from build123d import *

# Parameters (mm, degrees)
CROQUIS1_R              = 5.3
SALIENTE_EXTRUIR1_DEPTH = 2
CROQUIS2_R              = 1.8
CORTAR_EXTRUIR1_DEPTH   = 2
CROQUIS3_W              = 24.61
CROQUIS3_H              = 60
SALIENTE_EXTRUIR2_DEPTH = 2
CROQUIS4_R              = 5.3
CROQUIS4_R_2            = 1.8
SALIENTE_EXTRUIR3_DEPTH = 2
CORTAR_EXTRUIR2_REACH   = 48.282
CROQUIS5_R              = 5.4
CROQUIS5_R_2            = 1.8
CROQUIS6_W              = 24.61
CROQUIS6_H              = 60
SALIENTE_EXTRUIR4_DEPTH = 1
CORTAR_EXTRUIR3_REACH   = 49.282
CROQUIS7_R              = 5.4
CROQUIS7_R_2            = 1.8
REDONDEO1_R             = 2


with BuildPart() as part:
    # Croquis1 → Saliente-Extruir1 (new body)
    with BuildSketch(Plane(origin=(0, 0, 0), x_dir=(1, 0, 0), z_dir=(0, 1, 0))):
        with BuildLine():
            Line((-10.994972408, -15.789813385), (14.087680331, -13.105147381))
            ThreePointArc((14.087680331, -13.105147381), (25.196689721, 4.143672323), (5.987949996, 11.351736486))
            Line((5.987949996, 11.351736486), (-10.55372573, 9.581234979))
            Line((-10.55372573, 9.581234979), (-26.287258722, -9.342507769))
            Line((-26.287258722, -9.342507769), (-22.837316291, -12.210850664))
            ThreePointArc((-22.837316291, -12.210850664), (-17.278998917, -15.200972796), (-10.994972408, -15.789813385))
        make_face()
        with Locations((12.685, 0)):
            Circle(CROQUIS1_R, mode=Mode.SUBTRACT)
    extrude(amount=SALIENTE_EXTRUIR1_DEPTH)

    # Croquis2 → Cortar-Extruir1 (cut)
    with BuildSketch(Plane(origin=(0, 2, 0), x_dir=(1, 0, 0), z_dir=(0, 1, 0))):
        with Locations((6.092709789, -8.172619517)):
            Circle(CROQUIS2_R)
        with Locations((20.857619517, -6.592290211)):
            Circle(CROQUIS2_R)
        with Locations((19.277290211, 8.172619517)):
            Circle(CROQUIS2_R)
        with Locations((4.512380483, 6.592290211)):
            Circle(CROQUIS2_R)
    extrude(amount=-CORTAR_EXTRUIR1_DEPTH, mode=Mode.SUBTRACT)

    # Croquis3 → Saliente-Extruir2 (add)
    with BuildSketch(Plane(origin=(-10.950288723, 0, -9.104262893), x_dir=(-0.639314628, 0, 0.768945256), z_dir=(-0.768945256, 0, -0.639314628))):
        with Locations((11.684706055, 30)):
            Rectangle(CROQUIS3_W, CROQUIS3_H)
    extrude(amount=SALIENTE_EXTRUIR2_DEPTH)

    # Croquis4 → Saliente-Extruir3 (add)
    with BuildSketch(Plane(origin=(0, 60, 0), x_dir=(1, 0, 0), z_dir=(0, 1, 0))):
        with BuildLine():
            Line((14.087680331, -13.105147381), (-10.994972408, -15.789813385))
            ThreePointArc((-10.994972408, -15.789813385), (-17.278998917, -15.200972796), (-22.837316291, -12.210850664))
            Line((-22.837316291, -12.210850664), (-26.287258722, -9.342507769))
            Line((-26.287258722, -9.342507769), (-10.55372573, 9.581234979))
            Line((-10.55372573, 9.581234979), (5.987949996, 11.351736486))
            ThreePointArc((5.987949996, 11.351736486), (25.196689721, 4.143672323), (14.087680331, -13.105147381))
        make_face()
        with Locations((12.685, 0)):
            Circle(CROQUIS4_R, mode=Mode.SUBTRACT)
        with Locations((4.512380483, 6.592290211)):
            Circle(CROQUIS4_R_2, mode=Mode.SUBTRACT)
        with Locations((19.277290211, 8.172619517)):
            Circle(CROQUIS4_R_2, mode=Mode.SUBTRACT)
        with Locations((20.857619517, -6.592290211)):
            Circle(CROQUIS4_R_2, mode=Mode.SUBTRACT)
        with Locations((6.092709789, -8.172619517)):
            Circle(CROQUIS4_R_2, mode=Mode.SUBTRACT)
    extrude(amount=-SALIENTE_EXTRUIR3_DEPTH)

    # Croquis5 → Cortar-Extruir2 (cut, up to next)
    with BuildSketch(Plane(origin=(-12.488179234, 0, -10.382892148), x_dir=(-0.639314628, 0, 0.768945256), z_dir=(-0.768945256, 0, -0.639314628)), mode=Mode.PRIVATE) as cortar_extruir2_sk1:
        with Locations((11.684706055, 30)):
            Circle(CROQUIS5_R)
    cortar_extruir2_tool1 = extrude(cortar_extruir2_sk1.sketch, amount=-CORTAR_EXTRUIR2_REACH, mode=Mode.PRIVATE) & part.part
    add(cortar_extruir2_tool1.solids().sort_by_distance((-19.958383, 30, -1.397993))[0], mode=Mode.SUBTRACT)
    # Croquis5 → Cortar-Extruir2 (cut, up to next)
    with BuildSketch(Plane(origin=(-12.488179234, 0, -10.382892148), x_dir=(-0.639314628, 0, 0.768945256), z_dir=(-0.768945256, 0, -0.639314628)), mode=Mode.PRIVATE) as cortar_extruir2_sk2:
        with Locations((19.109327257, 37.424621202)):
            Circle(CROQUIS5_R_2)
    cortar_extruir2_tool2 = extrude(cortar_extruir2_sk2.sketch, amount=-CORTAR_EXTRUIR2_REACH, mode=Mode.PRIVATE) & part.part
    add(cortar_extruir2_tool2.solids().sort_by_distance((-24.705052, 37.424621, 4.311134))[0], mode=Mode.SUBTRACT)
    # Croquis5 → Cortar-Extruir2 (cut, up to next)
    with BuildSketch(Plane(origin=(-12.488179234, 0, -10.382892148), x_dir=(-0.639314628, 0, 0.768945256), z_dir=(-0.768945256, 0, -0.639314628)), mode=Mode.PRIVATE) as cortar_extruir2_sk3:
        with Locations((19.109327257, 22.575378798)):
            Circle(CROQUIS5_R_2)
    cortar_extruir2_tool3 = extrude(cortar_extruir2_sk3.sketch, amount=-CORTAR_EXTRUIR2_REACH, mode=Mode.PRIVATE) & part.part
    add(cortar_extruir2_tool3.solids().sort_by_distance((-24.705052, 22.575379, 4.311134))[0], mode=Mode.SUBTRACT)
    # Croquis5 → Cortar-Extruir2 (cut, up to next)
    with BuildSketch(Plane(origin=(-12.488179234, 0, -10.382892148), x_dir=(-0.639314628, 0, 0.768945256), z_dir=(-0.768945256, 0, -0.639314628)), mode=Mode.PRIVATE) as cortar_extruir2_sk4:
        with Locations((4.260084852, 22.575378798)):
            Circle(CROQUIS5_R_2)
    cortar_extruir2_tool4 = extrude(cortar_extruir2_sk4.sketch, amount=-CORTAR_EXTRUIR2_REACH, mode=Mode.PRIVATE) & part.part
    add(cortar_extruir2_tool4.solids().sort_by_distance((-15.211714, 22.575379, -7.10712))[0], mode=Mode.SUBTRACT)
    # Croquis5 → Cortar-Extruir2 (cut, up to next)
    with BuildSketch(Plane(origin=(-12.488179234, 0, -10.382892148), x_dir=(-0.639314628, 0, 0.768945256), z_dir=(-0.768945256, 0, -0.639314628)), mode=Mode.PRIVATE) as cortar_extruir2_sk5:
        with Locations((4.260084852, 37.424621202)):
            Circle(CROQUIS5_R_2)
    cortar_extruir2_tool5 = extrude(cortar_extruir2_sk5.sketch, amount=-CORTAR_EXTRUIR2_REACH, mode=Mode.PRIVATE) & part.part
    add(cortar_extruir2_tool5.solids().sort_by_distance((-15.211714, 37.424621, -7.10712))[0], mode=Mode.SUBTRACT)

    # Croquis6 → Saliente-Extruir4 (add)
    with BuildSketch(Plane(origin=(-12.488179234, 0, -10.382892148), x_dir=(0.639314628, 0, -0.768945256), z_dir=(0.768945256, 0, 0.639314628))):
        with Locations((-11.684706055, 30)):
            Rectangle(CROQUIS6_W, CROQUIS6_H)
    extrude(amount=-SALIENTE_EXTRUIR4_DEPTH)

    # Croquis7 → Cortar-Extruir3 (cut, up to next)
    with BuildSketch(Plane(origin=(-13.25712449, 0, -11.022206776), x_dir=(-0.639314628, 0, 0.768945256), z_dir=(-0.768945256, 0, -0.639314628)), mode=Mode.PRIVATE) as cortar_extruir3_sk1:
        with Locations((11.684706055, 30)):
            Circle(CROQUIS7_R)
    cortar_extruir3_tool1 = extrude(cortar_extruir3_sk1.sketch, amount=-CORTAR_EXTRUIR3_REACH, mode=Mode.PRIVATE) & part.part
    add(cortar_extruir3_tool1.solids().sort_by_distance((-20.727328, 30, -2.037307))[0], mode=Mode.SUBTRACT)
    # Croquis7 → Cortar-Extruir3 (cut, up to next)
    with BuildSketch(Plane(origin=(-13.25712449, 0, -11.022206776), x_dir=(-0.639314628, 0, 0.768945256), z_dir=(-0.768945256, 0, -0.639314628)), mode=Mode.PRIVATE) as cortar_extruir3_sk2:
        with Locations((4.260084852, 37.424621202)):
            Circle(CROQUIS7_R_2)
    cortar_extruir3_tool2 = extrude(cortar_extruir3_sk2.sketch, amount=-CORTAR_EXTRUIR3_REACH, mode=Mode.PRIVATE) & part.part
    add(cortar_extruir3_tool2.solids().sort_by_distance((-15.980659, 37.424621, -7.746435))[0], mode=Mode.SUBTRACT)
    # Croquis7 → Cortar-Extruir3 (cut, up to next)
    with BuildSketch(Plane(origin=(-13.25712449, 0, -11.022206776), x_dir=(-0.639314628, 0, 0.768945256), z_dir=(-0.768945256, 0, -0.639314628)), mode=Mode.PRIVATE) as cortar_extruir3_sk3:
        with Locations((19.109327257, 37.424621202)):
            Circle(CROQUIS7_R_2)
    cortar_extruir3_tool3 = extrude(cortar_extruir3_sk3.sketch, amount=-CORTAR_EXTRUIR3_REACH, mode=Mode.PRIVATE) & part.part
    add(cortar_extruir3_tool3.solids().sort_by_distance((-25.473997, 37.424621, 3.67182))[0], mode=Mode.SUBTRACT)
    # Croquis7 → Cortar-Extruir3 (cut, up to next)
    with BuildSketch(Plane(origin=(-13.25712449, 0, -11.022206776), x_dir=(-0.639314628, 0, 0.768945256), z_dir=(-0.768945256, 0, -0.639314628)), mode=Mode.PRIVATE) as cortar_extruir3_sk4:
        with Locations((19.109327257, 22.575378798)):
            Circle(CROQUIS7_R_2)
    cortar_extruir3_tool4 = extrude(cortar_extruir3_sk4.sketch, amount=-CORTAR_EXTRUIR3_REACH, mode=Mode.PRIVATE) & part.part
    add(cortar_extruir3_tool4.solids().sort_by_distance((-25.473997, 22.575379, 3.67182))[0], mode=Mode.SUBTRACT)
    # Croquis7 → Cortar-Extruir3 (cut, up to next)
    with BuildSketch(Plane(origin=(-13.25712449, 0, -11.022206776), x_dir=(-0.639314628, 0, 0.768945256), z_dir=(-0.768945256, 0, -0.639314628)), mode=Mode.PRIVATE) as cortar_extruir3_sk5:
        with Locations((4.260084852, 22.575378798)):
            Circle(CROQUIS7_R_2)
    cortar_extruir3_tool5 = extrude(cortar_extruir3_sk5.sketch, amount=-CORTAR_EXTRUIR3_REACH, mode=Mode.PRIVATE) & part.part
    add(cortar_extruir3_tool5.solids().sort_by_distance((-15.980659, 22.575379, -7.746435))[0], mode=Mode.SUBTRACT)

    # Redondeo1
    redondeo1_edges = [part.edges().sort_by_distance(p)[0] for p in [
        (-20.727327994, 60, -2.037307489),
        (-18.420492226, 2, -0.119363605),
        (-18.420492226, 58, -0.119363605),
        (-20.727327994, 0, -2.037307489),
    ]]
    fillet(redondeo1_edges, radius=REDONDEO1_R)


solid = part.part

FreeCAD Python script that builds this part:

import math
import FreeCAD as App
import Part
import Sketcher


def edges_at(feature, points):
    """Names of the edges that pass closest to the given points."""
    edges = feature.Shape.Edges
    near = lambda p: min(range(len(edges)), key=lambda i: edges[i].distToShape(Part.Vertex(*p))[0])
    return sorted({f"Edge{near(p) + 1}" for p in points})


def add_polygon(sketch, points):
    """Adds a closed chain of lines whose ends are joined by coincident constraints."""
    first, n = sketch.GeometryCount, len(points)
    for a, b in zip(points, points[1:] + points[:1]):
        sketch.addGeometry(Part.LineSegment(App.Vector(*a, 0), App.Vector(*b, 0)), False)
    for i in range(n):
        sketch.addConstraint(Sketcher.Constraint("Coincident", first + i, 2, first + (i + 1) % n, 1))

doc = App.newDocument("Part")
body = doc.addObject("PartDesign::Body", "Body")

sketch1 = doc.addObject("Sketcher::SketchObject", "Sketch")
body.addObject(sketch1)
sketch1.AttachmentSupport = (doc.XZ_Plane, [""])
sketch1.MapMode = "FlatFace"
sketch1.addGeometry([
    Part.LineSegment(App.Vector(-11, 15.8, 0), App.Vector(14.1, 13.1, 0)),
    Part.ArcOfCircle(Part.Circle(App.Vector(12.7, 0, 0), App.Vector(0, 0, 1), 13.2), math.radians(-121), math.radians(84)),
    Part.LineSegment(App.Vector(6, -11.4, 0), App.Vector(-10.6, -9.6, 0)),
    Part.LineSegment(App.Vector(-10.6, -9.6, 0), App.Vector(-26.3, 9.3, 0)),
    Part.LineSegment(App.Vector(-26.3, 9.3, 0), App.Vector(-22.8, 12.2, 0)),
    Part.ArcOfCircle(Part.Circle(App.Vector(-12.7, 0, 0), App.Vector(0, 0, 1), 15.9), math.radians(84), math.radians(130)),
    Part.Circle(App.Vector(12.7, 0, 0), App.Vector(0, 0, 1), 5.3),
], False)
sketch1.addConstraint([
    Sketcher.Constraint("Tangent", 0, 2, 1, 2),
    Sketcher.Constraint("Coincident", 1, 1, 2, 1),
    Sketcher.Constraint("Coincident", 2, 2, 3, 1),
    Sketcher.Constraint("Coincident", 3, 2, 4, 1),
    Sketcher.Constraint("Tangent", 4, 2, 5, 2),
    Sketcher.Constraint("Tangent", 5, 1, 0, 1),
    Sketcher.Constraint("Coincident", 6, 3, 1, 3),
    Sketcher.Constraint("Symmetric", 1, 3, 5, 3, -1, 1),
    Sketcher.Constraint("PointOnObject", 1, 3, -1),
    Sketcher.Constraint("Parallel", 0, 2),
    Sketcher.Constraint("Perpendicular", 3, 4),
    Sketcher.Constraint("Diameter", 6, 10.6),
    Sketcher.Constraint("Radius", 1, 13.18),
    Sketcher.Constraint("Radius", 5, 15.88),
    Sketcher.Constraint("Distance", 3, 24.61),
    Sketcher.Constraint("DistanceX", 5, 3, 1, 3, 25.37),
    Sketcher.Constraint("DistanceY", 1, 1, 2, 2, 1.770502),
    Sketcher.Constraint("Distance", 4, 4.48659),
])
pad1 = doc.addObject("PartDesign::Pad", "Pad")
body.addObject(pad1)
pad1.Profile = sketch1
pad1.Length = 2
pad1.Reversed = True

sketch2 = doc.addObject("Sketcher::SketchObject", "Sketch001")
body.addObject(sketch2)
sketch2.AttachmentSupport = (doc.XZ_Plane, [""])
sketch2.MapMode = "FlatFace"
sketch2.AttachmentOffset = App.Placement(App.Vector(0, 0, -2), App.Rotation())
sketch2.addGeometry([
    Part.Circle(App.Vector(6.1, 8.2, 0), App.Vector(0, 0, 1), 1.8),
    Part.Circle(App.Vector(20.9, 6.6, 0), App.Vector(0, 0, 1), 1.8),
    Part.Circle(App.Vector(19.3, -8.2, 0), App.Vector(0, 0, 1), 1.8),
    Part.Circle(App.Vector(4.5, -6.6, 0), App.Vector(0, 0, 1), 1.8),
], False)
sketch2.addConstraint([
    Sketcher.Constraint("Equal", 0, 1),
    Sketcher.Constraint("Equal", 1, 2),
    Sketcher.Constraint("Equal", 2, 3),
    Sketcher.Constraint("Diameter", 0, 3.6),
    Sketcher.Constraint("DistanceX", -1, 1, 0, 3, 6.09271),
    Sketcher.Constraint("DistanceY", -1, 1, 0, 3, 8.17262),
    Sketcher.Constraint("DistanceX", -1, 1, 1, 3, 20.85762),
    Sketcher.Constraint("DistanceY", -1, 1, 1, 3, 6.59229),
    Sketcher.Constraint("DistanceX", -1, 1, 2, 3, 19.27729),
    Sketcher.Constraint("DistanceY", 2, 3, -1, 1, 8.17262),
    Sketcher.Constraint("DistanceX", -1, 1, 3, 3, 4.51238),
    Sketcher.Constraint("DistanceY", 3, 3, -1, 1, 6.59229),
])
pocket1 = doc.addObject("PartDesign::Pocket", "Pocket")
body.addObject(pocket1)
pocket1.Profile = sketch2
pocket1.Length = 2
pocket1.Reversed = True

sketch3 = doc.addObject("Sketcher::SketchObject", "Sketch002")
body.addObject(sketch3)
sketch3.Placement = App.Placement(App.Vector(-10.950289, 0, -9.104263), App.Rotation(App.Vector(-0.639314628, 0, 0.768945256), App.Vector(0, 1, 0), App.Vector(-0.768945256, 0, -0.639314628), "ZXY"))
add_polygon(sketch3, [(-1, 60), (-1, 0), (24, 0), (24, 60)])
sketch3.addConstraint([
    Sketcher.Constraint("Vertical", 0),
    Sketcher.Constraint("Horizontal", 1),
    Sketcher.Constraint("Vertical", 2),
    Sketcher.Constraint("Horizontal", 3),
    Sketcher.Constraint("PointOnObject", 0, 2, -1),
    Sketcher.Constraint("DistanceY", 0, 2, 0, 1, 60.0),
    Sketcher.Constraint("DistanceX", 1, 1, 1, 2, 24.61),
    Sketcher.Constraint("DistanceX", 0, 2, -1, 1, 0.620294),
])
pad2 = doc.addObject("PartDesign::Pad", "Pad001")
body.addObject(pad2)
pad2.Profile = sketch3
pad2.Length = 2

sketch4 = doc.addObject("Sketcher::SketchObject", "Sketch003")
body.addObject(sketch4)
sketch4.AttachmentSupport = (doc.XZ_Plane, [""])
sketch4.MapMode = "FlatFace"
sketch4.AttachmentOffset = App.Placement(App.Vector(0, 0, -60), App.Rotation())
sketch4.addGeometry([
    Part.LineSegment(App.Vector(-11, 15.8, 0), App.Vector(14.1, 13.1, 0)),
    Part.ArcOfCircle(Part.Circle(App.Vector(12.7, 0, 0), App.Vector(0, 0, 1), 13.2), math.radians(-121), math.radians(84)),
    Part.LineSegment(App.Vector(6, -11.4, 0), App.Vector(-10.6, -9.6, 0)),
    Part.LineSegment(App.Vector(-10.6, -9.6, 0), App.Vector(-26.3, 9.3, 0)),
    Part.LineSegment(App.Vector(-26.3, 9.3, 0), App.Vector(-22.8, 12.2, 0)),
    Part.ArcOfCircle(Part.Circle(App.Vector(-12.7, 0, 0), App.Vector(0, 0, 1), 15.9), math.radians(84), math.radians(130)),
    Part.Circle(App.Vector(20.9, 6.6, 0), App.Vector(0, 0, 1), 1.8),
    Part.Circle(App.Vector(6.1, 8.2, 0), App.Vector(0, 0, 1), 1.8),
    Part.Circle(App.Vector(12.7, 0, 0), App.Vector(0, 0, 1), 5.3),
    Part.Circle(App.Vector(19.3, -8.2, 0), App.Vector(0, 0, 1), 1.8),
    Part.Circle(App.Vector(4.5, -6.6, 0), App.Vector(0, 0, 1), 1.8),
], False)
sketch4.addConstraint([
    Sketcher.Constraint("Tangent", 0, 2, 1, 2),
    Sketcher.Constraint("Coincident", 1, 1, 2, 1),
    Sketcher.Constraint("Coincident", 2, 2, 3, 1),
    Sketcher.Constraint("Coincident", 3, 2, 4, 1),
    Sketcher.Constraint("Tangent", 4, 2, 5, 2),
    Sketcher.Constraint("Tangent", 5, 1, 0, 1),
    Sketcher.Constraint("Coincident", 8, 3, 1, 3),
    Sketcher.Constraint("Equal", 6, 7),
    Sketcher.Constraint("Equal", 7, 9),
    Sketcher.Constraint("Equal", 9, 10),
    Sketcher.Constraint("Symmetric", 1, 3, 5, 3, -1, 1),
    Sketcher.Constraint("PointOnObject", 1, 3, -1),
    Sketcher.Constraint("Parallel", 0, 2),
    Sketcher.Constraint("Perpendicular", 3, 4),
    Sketcher.Constraint("Diameter", 6, 3.6),
    Sketcher.Constraint("Diameter", 8, 10.6),
    Sketcher.Constraint("Radius", 1, 13.18),
    Sketcher.Constraint("Radius", 5, 15.88),
    Sketcher.Constraint("Distance", 3, 24.61),
    Sketcher.Constraint("DistanceX", 5, 3, 1, 3, 25.37),
    Sketcher.Constraint("DistanceX", 10, 3, 0, 2, 9.5753),
    Sketcher.Constraint("DistanceY", 1, 1, 2, 2, 1.770502),
    Sketcher.Constraint("Distance", 4, 4.48659),
    Sketcher.Constraint("DistanceX", -1, 1, 6, 3, 20.85762),
    Sketcher.Constraint("DistanceY", -1, 1, 6, 3, 6.59229),
    Sketcher.Constraint("DistanceX", -1, 1, 7, 3, 6.09271),
    Sketcher.Constraint("DistanceY", -1, 1, 7, 3, 8.17262),
    Sketcher.Constraint("DistanceX", -1, 1, 9, 3, 19.27729),
    Sketcher.Constraint("DistanceY", 9, 3, -1, 1, 8.17262),
    Sketcher.Constraint("DistanceY", 10, 3, -1, 1, 6.59229),
])
pad3 = doc.addObject("PartDesign::Pad", "Pad002")
body.addObject(pad3)
pad3.Profile = sketch4
pad3.Length = 2

sketch5 = doc.addObject("Sketcher::SketchObject", "Sketch004")
body.addObject(sketch5)
sketch5.Placement = App.Placement(App.Vector(-12.488179, 0, -10.382892), App.Rotation(App.Vector(-0.639314628, 0, 0.768945256), App.Vector(0, 1, 0), App.Vector(-0.768945256, 0, -0.639314628), "ZXY"))
sketch5.addGeometry(Part.Circle(App.Vector(12, 30, 0), App.Vector(0, 0, 1), 5), False)
sketch5.addConstraint([
    Sketcher.Constraint("Diameter", 0, 10.8),
    Sketcher.Constraint("DistanceY", -1, 1, 0, 3, 30.0),
    Sketcher.Constraint("DistanceX", -1, 1, 0, 3, 11.684706),
])
pocket2 = doc.addObject("PartDesign::Pocket", "Pocket001")
body.addObject(pocket2)
pocket2.Profile = sketch5
pocket2.Type = "UpToFirst"

sketch6 = doc.addObject("Sketcher::SketchObject", "Sketch005")
body.addObject(sketch6)
sketch6.Placement = App.Placement(App.Vector(-12.488179, 0, -10.382892), App.Rotation(App.Vector(-0.639314628, 0, 0.768945256), App.Vector(0, 1, 0), App.Vector(-0.768945256, 0, -0.639314628), "ZXY"))
sketch6.addGeometry(Part.Circle(App.Vector(19.1, 37.4, 0), App.Vector(0, 0, 1), 1.8), False)
sketch6.addConstraint([
    Sketcher.Constraint("Diameter", 0, 3.6),
    Sketcher.Constraint("DistanceY", -1, 1, 0, 3, 37.424621),
    Sketcher.Constraint("DistanceX", -1, 1, 0, 3, 19.109327),
])
pocket3 = doc.addObject("PartDesign::Pocket", "Pocket002")
body.addObject(pocket3)
pocket3.Profile = sketch6
pocket3.Type = "UpToFirst"

sketch7 = doc.addObject("Sketcher::SketchObject", "Sketch006")
body.addObject(sketch7)
sketch7.Placement = App.Placement(App.Vector(-12.488179, 0, -10.382892), App.Rotation(App.Vector(-0.639314628, 0, 0.768945256), App.Vector(0, 1, 0), App.Vector(-0.768945256, 0, -0.639314628), "ZXY"))
sketch7.addGeometry(Part.Circle(App.Vector(19.1, 22.6, 0), App.Vector(0, 0, 1), 1.8), False)
sketch7.addConstraint([
    Sketcher.Constraint("Diameter", 0, 3.6),
    Sketcher.Constraint("DistanceY", -1, 1, 0, 3, 22.575379),
    Sketcher.Constraint("DistanceX", -1, 1, 0, 3, 19.109327),
])
pocket4 = doc.addObject("PartDesign::Pocket", "Pocket003")
body.addObject(pocket4)
pocket4.Profile = sketch7
pocket4.Type = "UpToFirst"

sketch8 = doc.addObject("Sketcher::SketchObject", "Sketch007")
body.addObject(sketch8)
sketch8.Placement = App.Placement(App.Vector(-12.488179, 0, -10.382892), App.Rotation(App.Vector(-0.639314628, 0, 0.768945256), App.Vector(0, 1, 0), App.Vector(-0.768945256, 0, -0.639314628), "ZXY"))
sketch8.addGeometry(Part.Circle(App.Vector(4.3, 22.6, 0), App.Vector(0, 0, 1), 1.8), False)
sketch8.addConstraint([
    Sketcher.Constraint("Diameter", 0, 3.6),
    Sketcher.Constraint("DistanceY", -1, 1, 0, 3, 22.575379),
    Sketcher.Constraint("DistanceX", -1, 1, 0, 3, 4.260085),
])
pocket5 = doc.addObject("PartDesign::Pocket", "Pocket004")
body.addObject(pocket5)
pocket5.Profile = sketch8
pocket5.Type = "UpToFirst"

sketch9 = doc.addObject("Sketcher::SketchObject", "Sketch008")
body.addObject(sketch9)
sketch9.Placement = App.Placement(App.Vector(-12.488179, 0, -10.382892), App.Rotation(App.Vector(-0.639314628, 0, 0.768945256), App.Vector(0, 1, 0), App.Vector(-0.768945256, 0, -0.639314628), "ZXY"))
sketch9.addGeometry(Part.Circle(App.Vector(4.3, 37.4, 0), App.Vector(0, 0, 1), 1.8), False)
sketch9.addConstraint([
    Sketcher.Constraint("Diameter", 0, 3.6),
    Sketcher.Constraint("DistanceY", -1, 1, 0, 3, 37.424621),
    Sketcher.Constraint("DistanceX", -1, 1, 0, 3, 4.260085),
])
pocket6 = doc.addObject("PartDesign::Pocket", "Pocket005")
body.addObject(pocket6)
pocket6.Profile = sketch9
pocket6.Type = "UpToFirst"

sketch10 = doc.addObject("Sketcher::SketchObject", "Sketch009")
body.addObject(sketch10)
sketch10.Placement = App.Placement(App.Vector(-12.488179, 0, -10.382892), App.Rotation(App.Vector(0.639314628, 0, -0.768945256), App.Vector(0, 1, 0), App.Vector(0.768945256, 0, 0.639314628), "ZXY"))
add_polygon(sketch10, [(-24, 60), (-24, 0), (1, 0), (1, 60)])
sketch10.addConstraint([
    Sketcher.Constraint("Vertical", 0),
    Sketcher.Constraint("Horizontal", 1),
    Sketcher.Constraint("Vertical", 2),
    Sketcher.Constraint("Horizontal", 3),
    Sketcher.Constraint("PointOnObject", 0, 2, -1),
    Sketcher.Constraint("DistanceY", 0, 2, 0, 1, 60.0),
    Sketcher.Constraint("DistanceX", 1, 1, 1, 2, 24.61),
    Sketcher.Constraint("DistanceX", 0, 2, -1, 1, 23.989706),
])
pad4 = doc.addObject("PartDesign::Pad", "Pad003")
body.addObject(pad4)
pad4.Profile = sketch10
pad4.Length = 1
pad4.Reversed = True

sketch11 = doc.addObject("Sketcher::SketchObject", "Sketch010")
body.addObject(sketch11)
sketch11.Placement = App.Placement(App.Vector(-13.257124, 0, -11.022207), App.Rotation(App.Vector(-0.639314628, 0, 0.768945256), App.Vector(0, 1, 0), App.Vector(-0.768945256, 0, -0.639314628), "ZXY"))
sketch11.addGeometry(Part.Circle(App.Vector(12, 30, 0), App.Vector(0, 0, 1), 5), False)
sketch11.addConstraint([
    Sketcher.Constraint("Diameter", 0, 10.8),
    Sketcher.Constraint("DistanceY", -1, 1, 0, 3, 30.0),
    Sketcher.Constraint("DistanceX", -1, 1, 0, 3, 11.684706),
])
pocket7 = doc.addObject("PartDesign::Pocket", "Pocket006")
body.addObject(pocket7)
pocket7.Profile = sketch11
pocket7.Type = "UpToFirst"

sketch12 = doc.addObject("Sketcher::SketchObject", "Sketch011")
body.addObject(sketch12)
sketch12.Placement = App.Placement(App.Vector(-13.257124, 0, -11.022207), App.Rotation(App.Vector(-0.639314628, 0, 0.768945256), App.Vector(0, 1, 0), App.Vector(-0.768945256, 0, -0.639314628), "ZXY"))
sketch12.addGeometry(Part.Circle(App.Vector(4.3, 37.4, 0), App.Vector(0, 0, 1), 1.8), False)
sketch12.addConstraint([
    Sketcher.Constraint("Diameter", 0, 3.6),
    Sketcher.Constraint("DistanceY", -1, 1, 0, 3, 37.424621),
    Sketcher.Constraint("DistanceX", -1, 1, 0, 3, 4.260085),
])
pocket8 = doc.addObject("PartDesign::Pocket", "Pocket007")
body.addObject(pocket8)
pocket8.Profile = sketch12
pocket8.Type = "UpToFirst"

sketch13 = doc.addObject("Sketcher::SketchObject", "Sketch012")
body.addObject(sketch13)
sketch13.Placement = App.Placement(App.Vector(-13.257124, 0, -11.022207), App.Rotation(App.Vector(-0.639314628, 0, 0.768945256), App.Vector(0, 1, 0), App.Vector(-0.768945256, 0, -0.639314628), "ZXY"))
sketch13.addGeometry(Part.Circle(App.Vector(19.1, 37.4, 0), App.Vector(0, 0, 1), 1.8), False)
sketch13.addConstraint([
    Sketcher.Constraint("Diameter", 0, 3.6),
    Sketcher.Constraint("DistanceY", -1, 1, 0, 3, 37.424621),
    Sketcher.Constraint("DistanceX", -1, 1, 0, 3, 19.109327),
])
pocket9 = doc.addObject("PartDesign::Pocket", "Pocket008")
body.addObject(pocket9)
pocket9.Profile = sketch13
pocket9.Type = "UpToFirst"

sketch14 = doc.addObject("Sketcher::SketchObject", "Sketch013")
body.addObject(sketch14)
sketch14.Placement = App.Placement(App.Vector(-13.257124, 0, -11.022207), App.Rotation(App.Vector(-0.639314628, 0, 0.768945256), App.Vector(0, 1, 0), App.Vector(-0.768945256, 0, -0.639314628), "ZXY"))
sketch14.addGeometry(Part.Circle(App.Vector(19.1, 22.6, 0), App.Vector(0, 0, 1), 1.8), False)
sketch14.addConstraint([
    Sketcher.Constraint("Diameter", 0, 3.6),
    Sketcher.Constraint("DistanceY", -1, 1, 0, 3, 22.575379),
    Sketcher.Constraint("DistanceX", -1, 1, 0, 3, 19.109327),
])
pocket10 = doc.addObject("PartDesign::Pocket", "Pocket009")
body.addObject(pocket10)
pocket10.Profile = sketch14
pocket10.Type = "UpToFirst"

sketch15 = doc.addObject("Sketcher::SketchObject", "Sketch014")
body.addObject(sketch15)
sketch15.Placement = App.Placement(App.Vector(-13.257124, 0, -11.022207), App.Rotation(App.Vector(-0.639314628, 0, 0.768945256), App.Vector(0, 1, 0), App.Vector(-0.768945256, 0, -0.639314628), "ZXY"))
sketch15.addGeometry(Part.Circle(App.Vector(4.3, 22.6, 0), App.Vector(0, 0, 1), 1.8), False)
sketch15.addConstraint([
    Sketcher.Constraint("Diameter", 0, 3.6),
    Sketcher.Constraint("DistanceY", -1, 1, 0, 3, 22.575379),
    Sketcher.Constraint("DistanceX", -1, 1, 0, 3, 4.260085),
])
pocket11 = doc.addObject("PartDesign::Pocket", "Pocket010")
body.addObject(pocket11)
pocket11.Profile = sketch15
pocket11.Type = "UpToFirst"
doc.recompute()

fillet = doc.addObject("PartDesign::Fillet", "Fillet")
body.addObject(fillet)
fillet.Base = (pocket11, edges_at(pocket11, [
    (-20.727, 60, -2.037),
    (-18.42, 2, -0.119),
    (-18.42, 58, -0.119),
    (-20.727, 0, -2.037),
]))
fillet.Radius = 2

doc.recompute()
